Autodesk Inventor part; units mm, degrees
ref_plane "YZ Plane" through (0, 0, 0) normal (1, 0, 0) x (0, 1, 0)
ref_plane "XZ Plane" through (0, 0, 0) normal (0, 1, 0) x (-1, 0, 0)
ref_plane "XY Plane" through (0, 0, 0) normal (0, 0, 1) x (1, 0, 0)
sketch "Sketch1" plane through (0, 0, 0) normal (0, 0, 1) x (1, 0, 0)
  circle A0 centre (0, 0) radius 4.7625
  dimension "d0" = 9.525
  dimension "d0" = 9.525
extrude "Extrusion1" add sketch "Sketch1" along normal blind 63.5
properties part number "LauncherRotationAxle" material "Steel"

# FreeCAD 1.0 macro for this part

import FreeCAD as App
import Part
import Sketcher

V = App.Vector
Q = App.Units.Quantity

doc = App.newDocument("Part")
body = doc.addObject("PartDesign::Body", "Body")

# Sketch on XY plane
sketch1 = body.newObject("Sketcher::SketchObject", "Sketch")
sketch1.AttachmentSupport = (doc.getObject("XY_Plane"), [""])
sketch1.MapMode = "FlatFace"
sketch1.addGeometry(Part.Circle(V(0, 0, 0), V(0, 0, 1), 4.7625), False)
sketch1.addConstraint(Sketcher.Constraint("Coincident", 0, 3, -1, 1))
sketch1.addConstraint(Sketcher.Constraint("Diameter", 0, Q("0.375 in")))
pad1 = body.newObject("PartDesign::Pad", "Pad")
pad1.Profile = sketch1
pad1.Length = Q("2.5 in")

doc.recompute()
